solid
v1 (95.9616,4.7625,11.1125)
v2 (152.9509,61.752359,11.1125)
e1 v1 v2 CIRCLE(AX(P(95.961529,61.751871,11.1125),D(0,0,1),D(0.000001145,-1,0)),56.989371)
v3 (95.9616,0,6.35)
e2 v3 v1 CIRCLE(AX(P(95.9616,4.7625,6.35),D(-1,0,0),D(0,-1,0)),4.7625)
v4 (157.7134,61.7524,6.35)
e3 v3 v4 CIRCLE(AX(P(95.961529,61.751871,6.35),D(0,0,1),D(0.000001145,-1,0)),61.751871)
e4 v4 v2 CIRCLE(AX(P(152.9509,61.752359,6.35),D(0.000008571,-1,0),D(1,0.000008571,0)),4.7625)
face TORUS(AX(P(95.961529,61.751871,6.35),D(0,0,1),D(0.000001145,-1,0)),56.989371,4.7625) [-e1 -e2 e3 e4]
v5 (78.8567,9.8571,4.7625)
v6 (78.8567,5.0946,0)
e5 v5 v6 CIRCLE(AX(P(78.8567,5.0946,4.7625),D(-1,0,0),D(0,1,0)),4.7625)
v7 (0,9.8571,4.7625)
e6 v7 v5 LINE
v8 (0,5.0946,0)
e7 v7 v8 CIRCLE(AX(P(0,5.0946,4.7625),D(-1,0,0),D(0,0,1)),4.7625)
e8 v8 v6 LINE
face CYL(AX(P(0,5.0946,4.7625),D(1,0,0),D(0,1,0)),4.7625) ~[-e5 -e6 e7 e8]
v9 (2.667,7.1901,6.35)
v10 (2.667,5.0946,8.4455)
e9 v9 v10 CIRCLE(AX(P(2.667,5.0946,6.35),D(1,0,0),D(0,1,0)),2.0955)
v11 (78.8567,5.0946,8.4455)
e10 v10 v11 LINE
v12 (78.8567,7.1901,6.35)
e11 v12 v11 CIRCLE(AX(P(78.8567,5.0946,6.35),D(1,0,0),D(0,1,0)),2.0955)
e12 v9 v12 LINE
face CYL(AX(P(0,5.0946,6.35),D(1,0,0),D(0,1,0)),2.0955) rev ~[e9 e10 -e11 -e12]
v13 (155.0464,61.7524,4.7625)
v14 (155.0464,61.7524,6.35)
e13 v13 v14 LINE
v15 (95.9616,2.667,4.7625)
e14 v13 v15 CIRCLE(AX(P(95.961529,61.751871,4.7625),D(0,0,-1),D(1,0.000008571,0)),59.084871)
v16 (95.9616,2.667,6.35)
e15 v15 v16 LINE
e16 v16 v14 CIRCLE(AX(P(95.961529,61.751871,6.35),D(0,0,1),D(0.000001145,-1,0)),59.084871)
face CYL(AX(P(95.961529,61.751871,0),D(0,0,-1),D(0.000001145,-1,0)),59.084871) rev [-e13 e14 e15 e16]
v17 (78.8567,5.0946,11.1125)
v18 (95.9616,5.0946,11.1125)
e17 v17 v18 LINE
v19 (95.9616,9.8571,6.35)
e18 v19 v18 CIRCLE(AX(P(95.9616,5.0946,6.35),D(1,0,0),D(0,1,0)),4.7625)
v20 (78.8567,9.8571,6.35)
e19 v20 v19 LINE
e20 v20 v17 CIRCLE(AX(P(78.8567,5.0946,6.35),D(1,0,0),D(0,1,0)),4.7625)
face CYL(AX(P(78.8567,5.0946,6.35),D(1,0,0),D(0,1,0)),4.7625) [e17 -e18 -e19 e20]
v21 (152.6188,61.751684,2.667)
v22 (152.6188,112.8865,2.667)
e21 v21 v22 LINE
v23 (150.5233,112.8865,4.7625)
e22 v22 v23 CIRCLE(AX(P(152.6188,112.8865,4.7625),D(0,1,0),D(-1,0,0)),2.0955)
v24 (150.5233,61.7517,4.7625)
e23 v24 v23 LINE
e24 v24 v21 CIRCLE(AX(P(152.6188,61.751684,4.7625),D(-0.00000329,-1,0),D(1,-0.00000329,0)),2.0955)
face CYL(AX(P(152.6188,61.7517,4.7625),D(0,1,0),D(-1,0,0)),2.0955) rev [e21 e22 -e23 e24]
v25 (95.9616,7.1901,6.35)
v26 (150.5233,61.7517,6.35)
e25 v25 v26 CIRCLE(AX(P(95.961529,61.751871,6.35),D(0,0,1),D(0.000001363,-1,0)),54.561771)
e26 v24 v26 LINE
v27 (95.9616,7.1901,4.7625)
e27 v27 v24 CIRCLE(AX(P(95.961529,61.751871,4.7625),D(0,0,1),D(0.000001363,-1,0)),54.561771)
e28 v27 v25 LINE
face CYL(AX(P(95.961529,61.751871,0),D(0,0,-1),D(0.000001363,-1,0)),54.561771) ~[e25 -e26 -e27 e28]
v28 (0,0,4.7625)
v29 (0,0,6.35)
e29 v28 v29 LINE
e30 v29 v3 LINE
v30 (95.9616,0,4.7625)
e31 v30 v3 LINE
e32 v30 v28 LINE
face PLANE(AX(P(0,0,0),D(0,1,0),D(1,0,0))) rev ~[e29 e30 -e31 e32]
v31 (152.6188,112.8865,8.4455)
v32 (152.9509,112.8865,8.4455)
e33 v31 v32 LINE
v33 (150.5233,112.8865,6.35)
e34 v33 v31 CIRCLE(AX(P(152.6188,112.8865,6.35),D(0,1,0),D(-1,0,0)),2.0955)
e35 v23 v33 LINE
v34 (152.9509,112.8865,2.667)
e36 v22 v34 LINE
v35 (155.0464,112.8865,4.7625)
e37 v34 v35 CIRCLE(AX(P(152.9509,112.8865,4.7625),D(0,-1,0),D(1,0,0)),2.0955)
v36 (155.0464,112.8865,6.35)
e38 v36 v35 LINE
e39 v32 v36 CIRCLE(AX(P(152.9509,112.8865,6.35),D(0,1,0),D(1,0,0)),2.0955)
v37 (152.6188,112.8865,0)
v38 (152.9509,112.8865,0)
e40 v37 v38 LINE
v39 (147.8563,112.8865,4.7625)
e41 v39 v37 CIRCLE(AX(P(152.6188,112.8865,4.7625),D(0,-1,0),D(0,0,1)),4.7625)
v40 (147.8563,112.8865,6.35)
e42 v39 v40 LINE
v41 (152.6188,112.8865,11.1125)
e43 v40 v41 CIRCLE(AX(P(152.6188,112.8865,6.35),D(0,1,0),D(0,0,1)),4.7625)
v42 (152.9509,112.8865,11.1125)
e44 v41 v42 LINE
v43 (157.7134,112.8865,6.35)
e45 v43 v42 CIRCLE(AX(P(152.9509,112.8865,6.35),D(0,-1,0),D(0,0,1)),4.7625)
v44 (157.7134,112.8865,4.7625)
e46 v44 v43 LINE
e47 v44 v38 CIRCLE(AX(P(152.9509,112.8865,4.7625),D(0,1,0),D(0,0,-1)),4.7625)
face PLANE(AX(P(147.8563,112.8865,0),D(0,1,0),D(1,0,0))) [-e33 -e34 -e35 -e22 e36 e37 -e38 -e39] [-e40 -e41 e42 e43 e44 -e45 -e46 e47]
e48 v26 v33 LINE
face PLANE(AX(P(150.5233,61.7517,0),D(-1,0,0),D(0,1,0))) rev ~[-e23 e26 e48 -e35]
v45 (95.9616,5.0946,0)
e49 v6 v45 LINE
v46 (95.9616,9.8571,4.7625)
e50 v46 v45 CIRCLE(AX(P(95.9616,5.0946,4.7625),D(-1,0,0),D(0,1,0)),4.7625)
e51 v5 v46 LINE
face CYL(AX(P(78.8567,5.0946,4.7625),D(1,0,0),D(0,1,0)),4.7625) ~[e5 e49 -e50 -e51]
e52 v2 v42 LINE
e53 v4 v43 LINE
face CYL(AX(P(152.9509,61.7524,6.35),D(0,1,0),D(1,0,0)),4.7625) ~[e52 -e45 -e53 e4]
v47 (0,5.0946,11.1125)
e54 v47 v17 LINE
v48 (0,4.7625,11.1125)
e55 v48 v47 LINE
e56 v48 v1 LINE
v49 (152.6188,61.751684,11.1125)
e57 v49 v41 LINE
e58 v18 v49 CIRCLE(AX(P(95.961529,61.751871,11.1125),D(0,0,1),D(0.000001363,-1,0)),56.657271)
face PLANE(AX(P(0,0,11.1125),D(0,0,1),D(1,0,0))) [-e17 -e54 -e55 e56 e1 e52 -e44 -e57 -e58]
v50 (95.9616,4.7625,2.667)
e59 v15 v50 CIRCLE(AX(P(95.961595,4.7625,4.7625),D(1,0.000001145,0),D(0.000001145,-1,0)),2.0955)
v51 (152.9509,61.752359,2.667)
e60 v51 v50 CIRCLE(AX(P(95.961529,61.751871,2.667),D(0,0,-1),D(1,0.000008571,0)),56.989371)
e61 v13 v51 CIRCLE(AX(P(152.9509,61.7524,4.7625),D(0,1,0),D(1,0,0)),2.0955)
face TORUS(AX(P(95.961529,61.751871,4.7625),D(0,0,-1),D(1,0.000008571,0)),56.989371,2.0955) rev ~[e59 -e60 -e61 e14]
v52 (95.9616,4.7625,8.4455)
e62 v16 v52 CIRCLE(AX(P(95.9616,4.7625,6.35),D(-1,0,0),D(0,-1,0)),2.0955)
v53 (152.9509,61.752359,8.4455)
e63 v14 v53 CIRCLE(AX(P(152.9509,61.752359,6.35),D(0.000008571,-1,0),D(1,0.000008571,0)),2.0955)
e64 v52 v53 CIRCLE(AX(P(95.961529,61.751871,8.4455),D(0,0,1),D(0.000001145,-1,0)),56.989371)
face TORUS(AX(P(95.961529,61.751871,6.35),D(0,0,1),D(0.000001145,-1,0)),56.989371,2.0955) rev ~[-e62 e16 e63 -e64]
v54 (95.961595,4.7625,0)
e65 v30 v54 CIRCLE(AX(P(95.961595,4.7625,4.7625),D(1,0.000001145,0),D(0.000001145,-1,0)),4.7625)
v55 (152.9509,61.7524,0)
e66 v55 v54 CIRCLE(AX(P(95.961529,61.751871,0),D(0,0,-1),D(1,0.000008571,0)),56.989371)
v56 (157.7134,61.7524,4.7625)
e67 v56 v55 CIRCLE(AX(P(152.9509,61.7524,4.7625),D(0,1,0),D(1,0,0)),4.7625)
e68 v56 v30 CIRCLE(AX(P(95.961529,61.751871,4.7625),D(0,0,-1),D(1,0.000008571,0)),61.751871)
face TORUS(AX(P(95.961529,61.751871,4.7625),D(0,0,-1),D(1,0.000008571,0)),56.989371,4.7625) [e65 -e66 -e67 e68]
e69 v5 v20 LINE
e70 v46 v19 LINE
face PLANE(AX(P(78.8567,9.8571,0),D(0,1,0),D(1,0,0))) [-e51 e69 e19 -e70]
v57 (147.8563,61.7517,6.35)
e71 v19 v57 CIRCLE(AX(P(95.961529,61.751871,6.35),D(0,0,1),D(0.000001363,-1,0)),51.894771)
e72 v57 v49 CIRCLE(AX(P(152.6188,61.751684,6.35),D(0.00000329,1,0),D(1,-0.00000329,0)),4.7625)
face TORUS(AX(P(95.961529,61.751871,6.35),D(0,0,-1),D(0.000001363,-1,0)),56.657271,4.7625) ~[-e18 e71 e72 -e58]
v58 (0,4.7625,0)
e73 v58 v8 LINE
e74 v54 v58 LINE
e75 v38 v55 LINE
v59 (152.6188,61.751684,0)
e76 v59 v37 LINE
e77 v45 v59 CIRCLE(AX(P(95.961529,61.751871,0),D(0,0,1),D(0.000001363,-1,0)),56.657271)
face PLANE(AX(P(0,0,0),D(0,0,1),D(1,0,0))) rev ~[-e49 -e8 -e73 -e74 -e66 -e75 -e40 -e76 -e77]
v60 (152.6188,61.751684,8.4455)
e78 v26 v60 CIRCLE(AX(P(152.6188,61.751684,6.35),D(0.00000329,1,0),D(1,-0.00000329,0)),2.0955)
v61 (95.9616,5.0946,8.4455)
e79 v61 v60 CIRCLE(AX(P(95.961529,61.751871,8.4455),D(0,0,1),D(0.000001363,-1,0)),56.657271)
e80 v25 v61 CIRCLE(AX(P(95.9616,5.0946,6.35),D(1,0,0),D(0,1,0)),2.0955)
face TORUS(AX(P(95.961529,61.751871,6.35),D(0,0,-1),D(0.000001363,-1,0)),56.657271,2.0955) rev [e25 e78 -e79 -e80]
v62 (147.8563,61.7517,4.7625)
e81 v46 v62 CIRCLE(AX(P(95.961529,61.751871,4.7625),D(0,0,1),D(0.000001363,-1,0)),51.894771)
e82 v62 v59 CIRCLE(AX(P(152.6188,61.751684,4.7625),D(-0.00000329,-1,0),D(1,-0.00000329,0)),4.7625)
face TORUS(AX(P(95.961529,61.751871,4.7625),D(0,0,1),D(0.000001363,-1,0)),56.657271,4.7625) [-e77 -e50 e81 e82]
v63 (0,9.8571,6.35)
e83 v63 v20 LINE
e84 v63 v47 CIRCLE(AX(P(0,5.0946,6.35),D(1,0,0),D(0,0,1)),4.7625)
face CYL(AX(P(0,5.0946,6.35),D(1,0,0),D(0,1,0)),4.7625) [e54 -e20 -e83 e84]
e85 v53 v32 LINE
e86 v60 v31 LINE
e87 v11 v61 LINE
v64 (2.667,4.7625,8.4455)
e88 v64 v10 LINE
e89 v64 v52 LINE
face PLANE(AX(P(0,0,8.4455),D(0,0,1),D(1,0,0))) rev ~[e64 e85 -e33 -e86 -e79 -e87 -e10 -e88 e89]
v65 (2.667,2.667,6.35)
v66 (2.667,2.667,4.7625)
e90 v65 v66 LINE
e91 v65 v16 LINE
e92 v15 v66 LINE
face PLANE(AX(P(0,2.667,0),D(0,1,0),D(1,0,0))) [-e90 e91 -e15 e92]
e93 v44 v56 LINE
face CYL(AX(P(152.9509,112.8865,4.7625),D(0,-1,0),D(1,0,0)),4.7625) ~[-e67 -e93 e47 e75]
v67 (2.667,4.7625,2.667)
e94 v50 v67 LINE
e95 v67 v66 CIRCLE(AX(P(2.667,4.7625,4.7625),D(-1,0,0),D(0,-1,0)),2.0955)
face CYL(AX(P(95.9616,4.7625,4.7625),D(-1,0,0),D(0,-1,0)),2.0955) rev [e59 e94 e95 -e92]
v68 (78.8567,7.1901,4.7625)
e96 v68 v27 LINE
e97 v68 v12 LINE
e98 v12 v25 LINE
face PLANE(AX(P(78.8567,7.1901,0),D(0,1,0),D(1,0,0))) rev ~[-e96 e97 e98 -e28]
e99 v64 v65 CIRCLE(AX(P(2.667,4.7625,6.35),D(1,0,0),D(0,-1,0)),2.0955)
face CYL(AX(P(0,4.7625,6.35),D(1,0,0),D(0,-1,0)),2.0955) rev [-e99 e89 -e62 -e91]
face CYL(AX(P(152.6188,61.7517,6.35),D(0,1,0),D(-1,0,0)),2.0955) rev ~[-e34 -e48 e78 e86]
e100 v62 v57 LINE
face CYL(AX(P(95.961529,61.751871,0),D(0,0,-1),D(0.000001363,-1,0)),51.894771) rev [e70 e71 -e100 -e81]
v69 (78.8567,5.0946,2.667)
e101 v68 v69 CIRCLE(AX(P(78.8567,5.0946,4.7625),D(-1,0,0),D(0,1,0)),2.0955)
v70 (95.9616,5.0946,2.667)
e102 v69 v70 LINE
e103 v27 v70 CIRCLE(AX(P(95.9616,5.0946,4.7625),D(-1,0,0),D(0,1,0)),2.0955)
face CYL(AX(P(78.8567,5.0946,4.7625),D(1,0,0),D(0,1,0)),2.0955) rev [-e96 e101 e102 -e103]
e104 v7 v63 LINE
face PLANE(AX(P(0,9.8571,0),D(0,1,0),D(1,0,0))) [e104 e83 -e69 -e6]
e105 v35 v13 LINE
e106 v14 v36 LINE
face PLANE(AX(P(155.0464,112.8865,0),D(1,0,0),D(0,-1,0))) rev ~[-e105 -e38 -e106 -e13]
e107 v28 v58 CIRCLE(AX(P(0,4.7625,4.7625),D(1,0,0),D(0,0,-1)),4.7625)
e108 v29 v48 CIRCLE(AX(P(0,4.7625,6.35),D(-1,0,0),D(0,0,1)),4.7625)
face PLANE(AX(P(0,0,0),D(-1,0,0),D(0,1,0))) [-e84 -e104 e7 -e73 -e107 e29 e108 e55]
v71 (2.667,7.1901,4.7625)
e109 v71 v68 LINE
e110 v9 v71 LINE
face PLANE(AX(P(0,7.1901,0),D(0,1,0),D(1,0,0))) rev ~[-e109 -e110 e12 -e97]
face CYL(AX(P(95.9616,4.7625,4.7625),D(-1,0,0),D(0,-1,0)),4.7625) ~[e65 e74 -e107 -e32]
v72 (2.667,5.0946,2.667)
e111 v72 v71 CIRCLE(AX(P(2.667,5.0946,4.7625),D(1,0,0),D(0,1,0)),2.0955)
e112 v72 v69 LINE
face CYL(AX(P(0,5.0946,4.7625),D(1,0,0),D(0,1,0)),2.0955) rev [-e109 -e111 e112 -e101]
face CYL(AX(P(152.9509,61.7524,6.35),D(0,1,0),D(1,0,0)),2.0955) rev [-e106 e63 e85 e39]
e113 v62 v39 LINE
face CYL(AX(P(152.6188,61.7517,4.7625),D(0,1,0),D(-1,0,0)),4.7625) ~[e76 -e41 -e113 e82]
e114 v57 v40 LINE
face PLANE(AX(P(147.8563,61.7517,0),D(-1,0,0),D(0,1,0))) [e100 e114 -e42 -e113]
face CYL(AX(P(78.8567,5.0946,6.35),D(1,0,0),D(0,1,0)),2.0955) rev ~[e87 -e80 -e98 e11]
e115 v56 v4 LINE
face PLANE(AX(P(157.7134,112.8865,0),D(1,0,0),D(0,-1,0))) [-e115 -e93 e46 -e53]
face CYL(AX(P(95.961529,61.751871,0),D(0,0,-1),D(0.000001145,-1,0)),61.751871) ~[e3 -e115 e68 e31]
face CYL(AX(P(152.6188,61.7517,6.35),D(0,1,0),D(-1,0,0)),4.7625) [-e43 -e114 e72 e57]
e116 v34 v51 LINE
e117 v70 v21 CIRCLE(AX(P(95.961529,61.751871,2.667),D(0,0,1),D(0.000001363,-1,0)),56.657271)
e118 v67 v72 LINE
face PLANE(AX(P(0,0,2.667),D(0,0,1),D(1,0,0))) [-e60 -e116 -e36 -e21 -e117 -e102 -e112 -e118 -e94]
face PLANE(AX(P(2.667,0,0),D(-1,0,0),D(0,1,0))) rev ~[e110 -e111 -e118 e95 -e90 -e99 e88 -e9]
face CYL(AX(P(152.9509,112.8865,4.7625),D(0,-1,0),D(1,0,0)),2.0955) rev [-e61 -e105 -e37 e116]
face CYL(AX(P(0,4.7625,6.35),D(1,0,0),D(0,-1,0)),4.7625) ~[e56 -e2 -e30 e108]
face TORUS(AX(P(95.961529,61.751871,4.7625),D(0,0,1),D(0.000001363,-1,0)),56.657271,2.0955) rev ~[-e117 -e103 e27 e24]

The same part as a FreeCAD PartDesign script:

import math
import FreeCAD as App
import Part
import Sketcher
Q = App.Units.Quantity


def edges_at(feature, points):
    """Names of the edges that pass closest to the given points."""
    edges = feature.Shape.Edges
    near = lambda p: min(range(len(edges)), key=lambda i: edges[i].distToShape(Part.Vertex(*p))[0])
    return sorted({f"Edge{near(p) + 1}" for p in points})


def faces_at(feature, points):
    """Names of the faces that lie closest to the given points."""
    faces = feature.Shape.Faces
    near = lambda p: min(range(len(faces)), key=lambda i: faces[i].distToShape(Part.Vertex(*p))[0])
    return sorted({f"Face{near(p) + 1}" for p in points})

doc = App.newDocument("Part")
body = doc.addObject("PartDesign::Body", "Body")

sketch1 = doc.addObject("Sketcher::SketchObject", "Sketch")
body.addObject(sketch1)
sketch1.AttachmentSupport = (doc.XY_Plane, [""])
sketch1.MapMode = "FlatFace"
sketch1.addGeometry([
    Part.LineSegment(App.Vector(0, 10, 0), App.Vector(0, 0, 0)),
    Part.LineSegment(App.Vector(0, 0, 0), App.Vector(96, 0, 0)),
    Part.ArcOfCircle(Part.Circle(App.Vector(96, 62, 0), App.Vector(0, 0, 1), 62), math.radians(-90), math.radians(0)),
    Part.LineSegment(App.Vector(158, 62, 0), App.Vector(158, 113, 0)),
    Part.LineSegment(App.Vector(158, 113, 0), App.Vector(148, 113, 0)),
    Part.LineSegment(App.Vector(148, 113, 0), App.Vector(148, 62, 0)),
    Part.ArcOfCircle(Part.Circle(App.Vector(96, 62, 0), App.Vector(0, 0, 1), 52), math.radians(-90), math.radians(0)),
    Part.LineSegment(App.Vector(96, 10, 0), App.Vector(0, 10, 0)),
], False)
sketch1.addConstraint([
    Sketcher.Constraint("Coincident", 0, 2, 1, 1),
    Sketcher.Constraint("Tangent", 1, 2, 2, 1),
    Sketcher.Constraint("Tangent", 2, 2, 3, 1),
    Sketcher.Constraint("Coincident", 3, 2, 4, 1),
    Sketcher.Constraint("Coincident", 4, 2, 5, 1),
    Sketcher.Constraint("Tangent", 5, 2, 6, 2),
    Sketcher.Constraint("Tangent", 6, 1, 7, 1),
    Sketcher.Constraint("Coincident", 7, 2, 0, 1),
    Sketcher.Constraint("Vertical", 0),
    Sketcher.Constraint("Horizontal", 1),
    Sketcher.Constraint("Vertical", 3),
    Sketcher.Constraint("Horizontal", 4),
    Sketcher.Constraint("Vertical", 5),
    Sketcher.Constraint("Horizontal", 7),
    Sketcher.Constraint("Coincident", 0, 2, -1, 1),
    Sketcher.Constraint("Coincident", 6, 3, 2, 3),
    Sketcher.Constraint("Radius", 6, Q("2.0431 in")),
    Sketcher.Constraint("Radius", 2, Q("61.7517 mm")),
    Sketcher.Constraint("DistanceX", 1, 1, 1, 2, Q("95.9616 mm")),
    Sketcher.Constraint("DistanceY", 3, 1, 3, 2, Q("51.134 mm")),
])
pad1 = doc.addObject("PartDesign::Pad", "Pad")
body.addObject(pad1)
pad1.Profile = sketch1
pad1.Length = Q("0.4375 in")
doc.recompute()

fillet = doc.addObject("PartDesign::Fillet", "Fillet")
body.addObject(fillet)
fillet.Base = (pad1, edges_at(pad1, [
    (132.657, 25.057, 0),
    (147.856, 87.319, 0),
    (39.428, 9.857, 0),
    (132.657, 25.057, 11.113),
    (147.856, 87.319, 11.113),
    (39.428, 9.857, 11.113),
    (139.627, 18.087, 11.113),
    (157.713, 87.319, 11.113),
    (47.981, 0, 11.113),
    (157.713, 87.319, 0),
    (47.981, 0, 0),
    (139.627, 18.087, 0),
]))
fillet.Radius = Q("0.1875 in")
doc.recompute()

thickness = doc.addObject("PartDesign::Thickness", "Thickness")
body.addObject(thickness)
thickness.Base = (fillet, faces_at(fillet, [(152.84, 112.886, 3.175)]))
thickness.Value = Q("0.105 in")
thickness.Reversed = True
thickness.Join = "Intersection"

doc.recompute()
